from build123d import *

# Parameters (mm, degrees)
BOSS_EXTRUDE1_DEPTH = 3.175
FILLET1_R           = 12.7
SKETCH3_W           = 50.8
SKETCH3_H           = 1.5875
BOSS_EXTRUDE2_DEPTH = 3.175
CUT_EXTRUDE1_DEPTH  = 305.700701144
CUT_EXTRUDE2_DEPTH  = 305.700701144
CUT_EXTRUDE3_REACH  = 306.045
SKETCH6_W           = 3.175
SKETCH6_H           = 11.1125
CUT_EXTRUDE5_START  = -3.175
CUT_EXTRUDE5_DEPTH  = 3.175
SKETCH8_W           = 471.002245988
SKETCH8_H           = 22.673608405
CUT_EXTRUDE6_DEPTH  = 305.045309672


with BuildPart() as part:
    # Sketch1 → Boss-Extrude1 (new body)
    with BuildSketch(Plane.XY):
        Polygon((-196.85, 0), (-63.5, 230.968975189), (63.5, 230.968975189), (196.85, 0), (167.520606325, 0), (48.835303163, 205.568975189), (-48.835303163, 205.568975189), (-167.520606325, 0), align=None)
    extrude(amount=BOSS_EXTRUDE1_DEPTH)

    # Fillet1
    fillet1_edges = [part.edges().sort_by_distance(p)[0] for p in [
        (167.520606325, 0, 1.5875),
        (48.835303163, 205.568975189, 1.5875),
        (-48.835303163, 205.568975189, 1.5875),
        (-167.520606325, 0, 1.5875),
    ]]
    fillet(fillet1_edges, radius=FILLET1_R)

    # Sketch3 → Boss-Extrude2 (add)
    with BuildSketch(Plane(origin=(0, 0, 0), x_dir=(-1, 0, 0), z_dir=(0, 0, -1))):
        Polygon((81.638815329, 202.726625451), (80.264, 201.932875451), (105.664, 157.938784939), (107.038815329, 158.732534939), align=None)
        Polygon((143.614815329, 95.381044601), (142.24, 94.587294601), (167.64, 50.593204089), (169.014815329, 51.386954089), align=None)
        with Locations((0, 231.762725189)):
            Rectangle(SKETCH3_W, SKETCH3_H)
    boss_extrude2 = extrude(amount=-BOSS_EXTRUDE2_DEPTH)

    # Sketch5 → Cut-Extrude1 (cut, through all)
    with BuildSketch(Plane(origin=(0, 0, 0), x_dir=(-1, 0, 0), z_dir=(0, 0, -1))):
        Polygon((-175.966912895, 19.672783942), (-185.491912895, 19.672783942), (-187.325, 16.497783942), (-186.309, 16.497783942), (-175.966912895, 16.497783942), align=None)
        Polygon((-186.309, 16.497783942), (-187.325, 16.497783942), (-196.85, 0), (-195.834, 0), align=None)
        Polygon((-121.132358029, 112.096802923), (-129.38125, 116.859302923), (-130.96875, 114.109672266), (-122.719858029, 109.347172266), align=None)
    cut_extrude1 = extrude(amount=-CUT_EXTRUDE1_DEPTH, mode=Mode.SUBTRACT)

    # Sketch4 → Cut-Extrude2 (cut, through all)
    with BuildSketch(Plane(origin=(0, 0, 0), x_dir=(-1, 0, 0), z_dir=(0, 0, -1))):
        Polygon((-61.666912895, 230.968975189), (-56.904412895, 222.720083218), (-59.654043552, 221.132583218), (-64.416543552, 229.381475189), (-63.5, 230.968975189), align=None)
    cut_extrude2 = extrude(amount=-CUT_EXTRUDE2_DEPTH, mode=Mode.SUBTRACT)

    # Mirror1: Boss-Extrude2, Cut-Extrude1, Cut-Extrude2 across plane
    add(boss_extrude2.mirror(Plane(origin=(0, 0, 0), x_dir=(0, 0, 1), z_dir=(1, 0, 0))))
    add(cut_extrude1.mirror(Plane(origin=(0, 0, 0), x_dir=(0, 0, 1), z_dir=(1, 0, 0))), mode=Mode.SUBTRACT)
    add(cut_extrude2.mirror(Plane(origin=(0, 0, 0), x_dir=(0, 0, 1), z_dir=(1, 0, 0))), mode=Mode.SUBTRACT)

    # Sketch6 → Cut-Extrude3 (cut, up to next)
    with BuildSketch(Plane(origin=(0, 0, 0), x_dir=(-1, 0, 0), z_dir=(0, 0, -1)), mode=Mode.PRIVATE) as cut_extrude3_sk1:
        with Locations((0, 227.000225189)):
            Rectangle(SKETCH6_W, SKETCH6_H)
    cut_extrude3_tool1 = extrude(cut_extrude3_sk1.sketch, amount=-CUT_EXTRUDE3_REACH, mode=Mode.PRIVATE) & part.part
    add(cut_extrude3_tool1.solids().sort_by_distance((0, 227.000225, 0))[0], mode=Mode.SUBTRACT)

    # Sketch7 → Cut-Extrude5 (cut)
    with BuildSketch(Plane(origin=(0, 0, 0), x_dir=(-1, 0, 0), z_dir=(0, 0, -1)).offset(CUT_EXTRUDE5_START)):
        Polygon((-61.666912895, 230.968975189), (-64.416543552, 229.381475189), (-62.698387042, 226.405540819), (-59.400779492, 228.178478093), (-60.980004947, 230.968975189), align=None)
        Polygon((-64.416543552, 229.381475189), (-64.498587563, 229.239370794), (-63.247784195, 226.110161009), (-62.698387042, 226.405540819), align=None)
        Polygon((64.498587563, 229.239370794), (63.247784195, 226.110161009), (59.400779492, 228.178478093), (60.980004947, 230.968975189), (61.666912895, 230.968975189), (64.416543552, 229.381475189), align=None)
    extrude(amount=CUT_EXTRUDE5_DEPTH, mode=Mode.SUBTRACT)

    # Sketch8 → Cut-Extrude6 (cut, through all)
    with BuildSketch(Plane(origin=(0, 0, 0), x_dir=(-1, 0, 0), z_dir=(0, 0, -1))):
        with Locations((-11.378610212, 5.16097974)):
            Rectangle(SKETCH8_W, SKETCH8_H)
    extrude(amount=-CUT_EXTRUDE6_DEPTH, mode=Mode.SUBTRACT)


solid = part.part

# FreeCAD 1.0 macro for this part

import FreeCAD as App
import Part
import Sketcher

V = App.Vector
Q = App.Units.Quantity


def edges_at(feature, points):
    """Names of the edges that pass closest to the given points."""
    edges = feature.Shape.Edges
    near = lambda p: min(range(len(edges)), key=lambda i: edges[i].distToShape(Part.Vertex(*p))[0])
    return sorted({f"Edge{near(p) + 1}" for p in points})


def add_polygon(sketch, points):
    """Adds a closed chain of lines whose ends are joined by coincident constraints."""
    first, n = sketch.GeometryCount, len(points)
    for a, b in zip(points, points[1:] + points[:1]):
        sketch.addGeometry(Part.LineSegment(App.Vector(*a, 0), App.Vector(*b, 0)), False)
    for i in range(n):
        sketch.addConstraint(Sketcher.Constraint("Coincident", first + i, 2, first + (i + 1) % n, 1))

doc = App.newDocument("Part")
body = doc.addObject("PartDesign::Body", "Body")

# Sketch on XY plane
sketch1 = doc.addObject("Sketcher::SketchObject", "Sketch")
body.addObject(sketch1)
sketch1.AttachmentSupport = (doc.XY_Plane, [""])
sketch1.MapMode = "FlatFace"
add_polygon(sketch1, [(-64, 231), (-197, 0), (-168, 0), (-49, 206), (49, 206), (168, 0), (197, 0), (64, 231)])  # lines 0-7
sketch1.addConstraint(Sketcher.Constraint("Horizontal", 1))
sketch1.addConstraint(Sketcher.Constraint("Horizontal", 3))
sketch1.addConstraint(Sketcher.Constraint("Horizontal", 5))
sketch1.addConstraint(Sketcher.Constraint("Horizontal", 7))
sketch1.addConstraint(Sketcher.Constraint("Symmetric", 1, 2, 4, 2, -1, 1))
sketch1.addConstraint(Sketcher.Constraint("Symmetric", 0, 2, 5, 2, -2))
sketch1.addConstraint(Sketcher.Constraint("Parallel", 0, 2))
sketch1.addConstraint(Sketcher.Constraint("Parallel", 4, 6))
sketch1.addConstraint(Sketcher.Constraint("Equal", 2, 4))
sketch1.addConstraint(Sketcher.Constraint("DistanceX", 7, 2, 7, 1, Q("5 in")))
sketch1.addConstraint(Sketcher.Constraint("Angle", 0, Q("-120 deg")))
sketch1.addConstraint(Sketcher.Constraint("DistanceY", 3, 2, 6, 2, Q("1 in")))
sketch1.addConstraint(Sketcher.Constraint("Distance", 0, Q("10.5 in")))
sketch1.addConstraint(Sketcher.Constraint("DistanceX", 1, 1, 1, 2, Q("29.329394 mm")))
pad1 = doc.addObject("PartDesign::Pad", "Pad")
body.addObject(pad1)
pad1.Profile = sketch1
pad1.Length = Q("0.125 in")
doc.recompute()

fillet = doc.addObject("PartDesign::Fillet", "Fillet")
body.addObject(fillet)
fillet.Base = (pad1, edges_at(pad1, [
    (167.521, 0, 1.587),
    (48.835, 205.569, 1.587),
    (-48.835, 205.569, 1.587),
    (-167.521, 0, 1.587),
]))
fillet.Radius = Q("0.5 in")

# Sketch on XY plane
sketch2 = doc.addObject("Sketcher::SketchObject", "Sketch001")
body.addObject(sketch2)
sketch2.AttachmentSupport = (doc.XY_Plane, [""])
sketch2.MapMode = "FlatFace"
add_polygon(sketch2, [(-81.6, 202.7), (-80.3, 201.9), (-105.7, 157.9), (-107, 158.7)])  # lines 0-3
add_polygon(sketch2, [(-143.6, 95.4), (-142.2, 94.6), (-167.6, 50.6), (-169, 51.4)])  # lines 4-7
add_polygon(sketch2, [(25.4, 232.6), (25.4, 231), (-25.4, 231), (-25.4, 232.6)])  # lines 8-11
sketch2.addConstraint(Sketcher.Constraint("Vertical", 8))
sketch2.addConstraint(Sketcher.Constraint("Horizontal", 9))
sketch2.addConstraint(Sketcher.Constraint("Vertical", 10))
sketch2.addConstraint(Sketcher.Constraint("Horizontal", 11))
sketch2.addConstraint(Sketcher.Constraint("Perpendicular", 0, 1))
sketch2.addConstraint(Sketcher.Constraint("Perpendicular", 1, 2))
sketch2.addConstraint(Sketcher.Constraint("Perpendicular", 2, 3))
sketch2.addConstraint(Sketcher.Constraint("Perpendicular", 3, 4))
sketch2.addConstraint(Sketcher.Constraint("Perpendicular", 4, 5))
sketch2.addConstraint(Sketcher.Constraint("Perpendicular", 5, 6))
sketch2.addConstraint(Sketcher.Constraint("Perpendicular", 6, 7))
sketch2.addConstraint(Sketcher.Constraint("Equal", 2, 4))
sketch2.addConstraint(Sketcher.Constraint("Equal", 3, 5))
sketch2.addConstraint(Sketcher.Constraint("DistanceX", 9, 2, 9, 1, Q("2 in")))
sketch2.addConstraint(Sketcher.Constraint("Distance", 1, Q("2 in")))
sketch2.addConstraint(Sketcher.Constraint("DistanceX", -1, 1, 8, 2, Q("1 in")))
sketch2.addConstraint(Sketcher.Constraint("Angle", 0, Q("-30 deg")))
sketch2.addConstraint(Sketcher.Constraint("DistanceX", 4, 2, -1, 1, Q("5.6 in")))
sketch2.addConstraint(Sketcher.Constraint("DistanceY", 8, 2, 8, 1, Q("0.0625 in")))
sketch2.addConstraint(Sketcher.Constraint("DistanceX", 0, 2, -1, 1, Q("3.16 in")))
sketch2.addConstraint(Sketcher.Constraint("Distance", 0, Q("0.0625 in")))
sketch2.addConstraint(Sketcher.Constraint("DistanceY", 0, 2, 8, 2, Q("29.0361 mm")))
sketch2.addConstraint(Sketcher.Constraint("DistanceY", 4, 2, 1, 2, Q("63.35149 mm")))
sketch2.addConstraint(Sketcher.Constraint("DistanceY", -1, 1, 0, 2, Q("201.932875 mm")))
pad2 = doc.addObject("PartDesign::Pad", "Pad001")
body.addObject(pad2)
pad2.Profile = sketch2
pad2.Length = Q("0.125 in")

# Sketch on XY plane
sketch3 = doc.addObject("Sketcher::SketchObject", "Sketch002")
body.addObject(sketch3)
sketch3.AttachmentSupport = (doc.XY_Plane, [""])
sketch3.MapMode = "FlatFace"
add_polygon(sketch3, [(176, 19.7), (185.5, 19.7), (187.3, 16.5), (196.8, 0), (195.8, 0), (186.3, 16.5), (176, 16.5)])  # lines 0-6
add_polygon(sketch3, [(121.1, 112.1), (129.4, 116.9), (131, 114.1), (122.7, 109.3)])  # lines 7-10
sketch3.addConstraint(Sketcher.Constraint("Horizontal", 0))
sketch3.addConstraint(Sketcher.Constraint("Horizontal", 3))
sketch3.addConstraint(Sketcher.Constraint("Horizontal", 5))
sketch3.addConstraint(Sketcher.Constraint("Vertical", 6))
sketch3.addConstraint(Sketcher.Constraint("PointOnObject", 2, 2, -1))
sketch3.addConstraint(Sketcher.Constraint("Parallel", 1, 2))
sketch3.addConstraint(Sketcher.Constraint("Parallel", 2, 4))
sketch3.addConstraint(Sketcher.Constraint("Perpendicular", 4, 7))
sketch3.addConstraint(Sketcher.Constraint("Perpendicular", 7, 8))
sketch3.addConstraint(Sketcher.Constraint("Perpendicular", 8, 9))
sketch3.addConstraint(Sketcher.Constraint("Perpendicular", 9, 10))
sketch3.addConstraint(Sketcher.Constraint("Horizontal", 1, 2, 4, 2))
sketch3.addConstraint(Sketcher.Constraint("Angle", 1, Q("-60 deg")))
sketch3.addConstraint(Sketcher.Constraint("DistanceX", 3, 2, 3, 1, Q("0.04 in")))
sketch3.addConstraint(Sketcher.Constraint("Distance", 2, Q("0.75 in")))
sketch3.addConstraint(Sketcher.Constraint("DistanceX", 0, 1, 0, 2, Q("0.375 in")))
sketch3.addConstraint(Sketcher.Constraint("DistanceY", 6, 1, 6, 2, Q("0.125 in")))
sketch3.addConstraint(Sketcher.Constraint("DistanceX", -1, 1, 2, 2, Q("7.75 in")))
sketch3.addConstraint(Sketcher.Constraint("Distance", 7, Q("0.375 in")))
sketch3.addConstraint(Sketcher.Constraint("Distance", 8, Q("0.125 in")))
sketch3.addConstraint(Sketcher.Constraint("DistanceX", -1, 1, 7, 2, Q("5.09375 in")))
sketch3.addConstraint(Sketcher.Constraint("DistanceY", 6, 2, 7, 2, Q("97.186519 mm")))
pocket1 = doc.addObject("PartDesign::Pocket", "Pocket")
body.addObject(pocket1)
pocket1.Profile = sketch3
pocket1.Type = "ThroughAll"
pocket1.Reversed = True

# Sketch on XY plane
sketch4 = doc.addObject("Sketcher::SketchObject", "Sketch003")
body.addObject(sketch4)
sketch4.AttachmentSupport = (doc.XY_Plane, [""])
sketch4.MapMode = "FlatFace"
add_polygon(sketch4, [(56.9, 222.7), (61.7, 231), (63.5, 231), (64.4, 229.4), (59.7, 221.1)])  # lines 0-4
sketch4.addConstraint(Sketcher.Constraint("Horizontal", 1))
sketch4.addConstraint(Sketcher.Constraint("Parallel", 0, 3))
sketch4.addConstraint(Sketcher.Constraint("Perpendicular", 3, 4))
sketch4.addConstraint(Sketcher.Constraint("Equal", 0, 3))
sketch4.addConstraint(Sketcher.Constraint("Angle", 0, Q("60 deg")))
sketch4.addConstraint(Sketcher.Constraint("Angle", 2, Q("-60 deg")))
sketch4.addConstraint(Sketcher.Constraint("DistanceX", -1, 1, 1, 2, Q("2.5 in")))
sketch4.addConstraint(Sketcher.Constraint("Distance", 0, Q("0.375 in")))
sketch4.addConstraint(Sketcher.Constraint("Distance", 4, Q("0.125 in")))
sketch4.addConstraint(Sketcher.Constraint("DistanceY", -1, 1, 0, 2, Q("230.968975 mm")))
pocket2 = doc.addObject("PartDesign::Pocket", "Pocket001")
body.addObject(pocket2)
pocket2.Profile = sketch4
pocket2.Type = "ThroughAll"
pocket2.Reversed = True
doc.recompute()

mirrored = doc.addObject("PartDesign::Mirrored", "Mirrored")
body.addObject(mirrored)
mirrored.Originals = [pad2, pocket1, pocket2]
mirrored.MirrorPlane = (doc.YZ_Plane, [""])
body.Tip = mirrored

# Sketch on XY plane
sketch5 = doc.addObject("Sketcher::SketchObject", "Sketch004")
body.addObject(sketch5)
sketch5.AttachmentSupport = (doc.XY_Plane, [""])
sketch5.MapMode = "FlatFace"
add_polygon(sketch5, [(1.6, 232.6), (1.6, 221.4), (-1.6, 221.4), (-1.6, 232.6)])  # lines 0-3
sketch5.addConstraint(Sketcher.Constraint("Vertical", 0))
sketch5.addConstraint(Sketcher.Constraint("Horizontal", 1))
sketch5.addConstraint(Sketcher.Constraint("Vertical", 2))
sketch5.addConstraint(Sketcher.Constraint("Horizontal", 3))
sketch5.addConstraint(Sketcher.Constraint("DistanceX", 1, 2, 1, 1, Q("0.125 in")))
sketch5.addConstraint(Sketcher.Constraint("DistanceY", 0, 2, 0, 1, Q("0.4375 in")))
sketch5.addConstraint(Sketcher.Constraint("DistanceX", -1, 1, 0, 2, Q("0.0625 in")))
sketch5.addConstraint(Sketcher.Constraint("DistanceY", -1, 1, 0, 2, Q("221.443975 mm")))
pocket3 = doc.addObject("PartDesign::Pocket", "Pocket002")
body.addObject(pocket3)
pocket3.Profile = sketch5
pocket3.Type = "UpToFirst"
pocket3.Reversed = True

# Sketch on XY plane
sketch6 = doc.addObject("Sketcher::SketchObject", "Sketch005")
body.addObject(sketch6)
sketch6.AttachmentSupport = (doc.XY_Plane, [""])
sketch6.MapMode = "FlatFace"
sketch6.AttachmentOffset = App.Placement(V(0, 0, 0.125 * 25.4), App.Rotation())
add_polygon(sketch6, [(61.67, 230.97), (64.42, 229.38), (64.5, 229.24), (63.25, 226.11), (62.7, 226.41), (59.4, 228.18), (60.98, 230.97)])  # lines 0-6
add_polygon(sketch6, [(-63.25, 226.11), (-64.5, 229.24), (-64.42, 229.38), (-61.67, 230.97), (-60.98, 230.97), (-59.4, 228.18)])  # lines 7-12
sketch6.addConstraint(Sketcher.Constraint("Horizontal", 6))
sketch6.addConstraint(Sketcher.Constraint("Horizontal", 10))
sketch6.addConstraint(Sketcher.Constraint("Symmetric", 1, 2, 7, 2, -2))
sketch6.addConstraint(Sketcher.Constraint("Symmetric", 0, 2, 8, 2, -2))
sketch6.addConstraint(Sketcher.Constraint("Symmetric", 6, 2, 9, 2, -2))
sketch6.addConstraint(Sketcher.Constraint("Symmetric", 4, 2, 11, 2, -2))
sketch6.addConstraint(Sketcher.Constraint("Symmetric", 2, 2, 12, 2, -2))
sketch6.addConstraint(Sketcher.Constraint("Parallel", 3, 4))
sketch6.addConstraint(Sketcher.Constraint("Perpendicular", 0, 8))
sketch6.addConstraint(Sketcher.Constraint("Equal", 6, 10))
sketch6.addConstraint(Sketcher.Constraint("Angle", 0, Q("-30 deg")))
sketch6.addConstraint(Sketcher.Constraint("Distance", 0, Q("0.125 in")))
sketch6.addConstraint(Sketcher.Constraint("Distance", 4, Q("3.743998 mm")))
sketch6.addConstraint(Sketcher.Constraint("DistanceX", 3, 2, 1, 2, Q("1.800201 mm")))
sketch6.addConstraint(Sketcher.Constraint("DistanceX", 7, 2, 6, 2, Q("126.1655 mm")))
sketch6.addConstraint(Sketcher.Constraint("Distance", 1, Q("0.164088 mm")))
sketch6.addConstraint(Sketcher.Constraint("DistanceX", 6, 1, 6, 2, Q("0.686908 mm")))
sketch6.addConstraint(Sketcher.Constraint("DistanceY", -1, 1, 1, 2, Q("229.239371 mm")))
sketch6.addConstraint(Sketcher.Constraint("DistanceY", -1, 1, 2, 2, Q("226.110161 mm")))
sketch6.addConstraint(Sketcher.Constraint("DistanceY", -1, 1, 3, 2, Q("226.405541 mm")))
sketch6.addConstraint(Sketcher.Constraint("DistanceX", -1, 1, 4, 2, Q("59.400779 mm")))
pocket4 = doc.addObject("PartDesign::Pocket", "Pocket003")
body.addObject(pocket4)
pocket4.Profile = sketch6
pocket4.Length = Q("0.125 in")

# Sketch on XY plane
sketch7 = doc.addObject("Sketcher::SketchObject", "Sketch006")
body.addObject(sketch7)
sketch7.AttachmentSupport = (doc.XY_Plane, [""])
sketch7.MapMode = "FlatFace"
add_polygon(sketch7, [(247, 16), (247, -6), (-224, -6), (-224, 16)])  # lines 0-3
sketch7.addConstraint(Sketcher.Constraint("Vertical", 0))
sketch7.addConstraint(Sketcher.Constraint("Horizontal", 1))
sketch7.addConstraint(Sketcher.Constraint("Vertical", 2))
sketch7.addConstraint(Sketcher.Constraint("Horizontal", 3))
sketch7.addConstraint(Sketcher.Constraint("DistanceY", 0, 2, 0, 1, Q("22.673608 mm")))
sketch7.addConstraint(Sketcher.Constraint("DistanceX", 1, 2, 1, 1, Q("471.002246 mm")))
sketch7.addConstraint(Sketcher.Constraint("DistanceX", -1, 1, 0, 2, Q("246.879733 mm")))
sketch7.addConstraint(Sketcher.Constraint("DistanceY", 0, 2, -1, 1, Q("6.175824 mm")))
pocket5 = doc.addObject("PartDesign::Pocket", "Pocket004")
body.addObject(pocket5)
pocket5.Profile = sketch7
pocket5.Type = "ThroughAll"
pocket5.Reversed = True

doc.recompute()
